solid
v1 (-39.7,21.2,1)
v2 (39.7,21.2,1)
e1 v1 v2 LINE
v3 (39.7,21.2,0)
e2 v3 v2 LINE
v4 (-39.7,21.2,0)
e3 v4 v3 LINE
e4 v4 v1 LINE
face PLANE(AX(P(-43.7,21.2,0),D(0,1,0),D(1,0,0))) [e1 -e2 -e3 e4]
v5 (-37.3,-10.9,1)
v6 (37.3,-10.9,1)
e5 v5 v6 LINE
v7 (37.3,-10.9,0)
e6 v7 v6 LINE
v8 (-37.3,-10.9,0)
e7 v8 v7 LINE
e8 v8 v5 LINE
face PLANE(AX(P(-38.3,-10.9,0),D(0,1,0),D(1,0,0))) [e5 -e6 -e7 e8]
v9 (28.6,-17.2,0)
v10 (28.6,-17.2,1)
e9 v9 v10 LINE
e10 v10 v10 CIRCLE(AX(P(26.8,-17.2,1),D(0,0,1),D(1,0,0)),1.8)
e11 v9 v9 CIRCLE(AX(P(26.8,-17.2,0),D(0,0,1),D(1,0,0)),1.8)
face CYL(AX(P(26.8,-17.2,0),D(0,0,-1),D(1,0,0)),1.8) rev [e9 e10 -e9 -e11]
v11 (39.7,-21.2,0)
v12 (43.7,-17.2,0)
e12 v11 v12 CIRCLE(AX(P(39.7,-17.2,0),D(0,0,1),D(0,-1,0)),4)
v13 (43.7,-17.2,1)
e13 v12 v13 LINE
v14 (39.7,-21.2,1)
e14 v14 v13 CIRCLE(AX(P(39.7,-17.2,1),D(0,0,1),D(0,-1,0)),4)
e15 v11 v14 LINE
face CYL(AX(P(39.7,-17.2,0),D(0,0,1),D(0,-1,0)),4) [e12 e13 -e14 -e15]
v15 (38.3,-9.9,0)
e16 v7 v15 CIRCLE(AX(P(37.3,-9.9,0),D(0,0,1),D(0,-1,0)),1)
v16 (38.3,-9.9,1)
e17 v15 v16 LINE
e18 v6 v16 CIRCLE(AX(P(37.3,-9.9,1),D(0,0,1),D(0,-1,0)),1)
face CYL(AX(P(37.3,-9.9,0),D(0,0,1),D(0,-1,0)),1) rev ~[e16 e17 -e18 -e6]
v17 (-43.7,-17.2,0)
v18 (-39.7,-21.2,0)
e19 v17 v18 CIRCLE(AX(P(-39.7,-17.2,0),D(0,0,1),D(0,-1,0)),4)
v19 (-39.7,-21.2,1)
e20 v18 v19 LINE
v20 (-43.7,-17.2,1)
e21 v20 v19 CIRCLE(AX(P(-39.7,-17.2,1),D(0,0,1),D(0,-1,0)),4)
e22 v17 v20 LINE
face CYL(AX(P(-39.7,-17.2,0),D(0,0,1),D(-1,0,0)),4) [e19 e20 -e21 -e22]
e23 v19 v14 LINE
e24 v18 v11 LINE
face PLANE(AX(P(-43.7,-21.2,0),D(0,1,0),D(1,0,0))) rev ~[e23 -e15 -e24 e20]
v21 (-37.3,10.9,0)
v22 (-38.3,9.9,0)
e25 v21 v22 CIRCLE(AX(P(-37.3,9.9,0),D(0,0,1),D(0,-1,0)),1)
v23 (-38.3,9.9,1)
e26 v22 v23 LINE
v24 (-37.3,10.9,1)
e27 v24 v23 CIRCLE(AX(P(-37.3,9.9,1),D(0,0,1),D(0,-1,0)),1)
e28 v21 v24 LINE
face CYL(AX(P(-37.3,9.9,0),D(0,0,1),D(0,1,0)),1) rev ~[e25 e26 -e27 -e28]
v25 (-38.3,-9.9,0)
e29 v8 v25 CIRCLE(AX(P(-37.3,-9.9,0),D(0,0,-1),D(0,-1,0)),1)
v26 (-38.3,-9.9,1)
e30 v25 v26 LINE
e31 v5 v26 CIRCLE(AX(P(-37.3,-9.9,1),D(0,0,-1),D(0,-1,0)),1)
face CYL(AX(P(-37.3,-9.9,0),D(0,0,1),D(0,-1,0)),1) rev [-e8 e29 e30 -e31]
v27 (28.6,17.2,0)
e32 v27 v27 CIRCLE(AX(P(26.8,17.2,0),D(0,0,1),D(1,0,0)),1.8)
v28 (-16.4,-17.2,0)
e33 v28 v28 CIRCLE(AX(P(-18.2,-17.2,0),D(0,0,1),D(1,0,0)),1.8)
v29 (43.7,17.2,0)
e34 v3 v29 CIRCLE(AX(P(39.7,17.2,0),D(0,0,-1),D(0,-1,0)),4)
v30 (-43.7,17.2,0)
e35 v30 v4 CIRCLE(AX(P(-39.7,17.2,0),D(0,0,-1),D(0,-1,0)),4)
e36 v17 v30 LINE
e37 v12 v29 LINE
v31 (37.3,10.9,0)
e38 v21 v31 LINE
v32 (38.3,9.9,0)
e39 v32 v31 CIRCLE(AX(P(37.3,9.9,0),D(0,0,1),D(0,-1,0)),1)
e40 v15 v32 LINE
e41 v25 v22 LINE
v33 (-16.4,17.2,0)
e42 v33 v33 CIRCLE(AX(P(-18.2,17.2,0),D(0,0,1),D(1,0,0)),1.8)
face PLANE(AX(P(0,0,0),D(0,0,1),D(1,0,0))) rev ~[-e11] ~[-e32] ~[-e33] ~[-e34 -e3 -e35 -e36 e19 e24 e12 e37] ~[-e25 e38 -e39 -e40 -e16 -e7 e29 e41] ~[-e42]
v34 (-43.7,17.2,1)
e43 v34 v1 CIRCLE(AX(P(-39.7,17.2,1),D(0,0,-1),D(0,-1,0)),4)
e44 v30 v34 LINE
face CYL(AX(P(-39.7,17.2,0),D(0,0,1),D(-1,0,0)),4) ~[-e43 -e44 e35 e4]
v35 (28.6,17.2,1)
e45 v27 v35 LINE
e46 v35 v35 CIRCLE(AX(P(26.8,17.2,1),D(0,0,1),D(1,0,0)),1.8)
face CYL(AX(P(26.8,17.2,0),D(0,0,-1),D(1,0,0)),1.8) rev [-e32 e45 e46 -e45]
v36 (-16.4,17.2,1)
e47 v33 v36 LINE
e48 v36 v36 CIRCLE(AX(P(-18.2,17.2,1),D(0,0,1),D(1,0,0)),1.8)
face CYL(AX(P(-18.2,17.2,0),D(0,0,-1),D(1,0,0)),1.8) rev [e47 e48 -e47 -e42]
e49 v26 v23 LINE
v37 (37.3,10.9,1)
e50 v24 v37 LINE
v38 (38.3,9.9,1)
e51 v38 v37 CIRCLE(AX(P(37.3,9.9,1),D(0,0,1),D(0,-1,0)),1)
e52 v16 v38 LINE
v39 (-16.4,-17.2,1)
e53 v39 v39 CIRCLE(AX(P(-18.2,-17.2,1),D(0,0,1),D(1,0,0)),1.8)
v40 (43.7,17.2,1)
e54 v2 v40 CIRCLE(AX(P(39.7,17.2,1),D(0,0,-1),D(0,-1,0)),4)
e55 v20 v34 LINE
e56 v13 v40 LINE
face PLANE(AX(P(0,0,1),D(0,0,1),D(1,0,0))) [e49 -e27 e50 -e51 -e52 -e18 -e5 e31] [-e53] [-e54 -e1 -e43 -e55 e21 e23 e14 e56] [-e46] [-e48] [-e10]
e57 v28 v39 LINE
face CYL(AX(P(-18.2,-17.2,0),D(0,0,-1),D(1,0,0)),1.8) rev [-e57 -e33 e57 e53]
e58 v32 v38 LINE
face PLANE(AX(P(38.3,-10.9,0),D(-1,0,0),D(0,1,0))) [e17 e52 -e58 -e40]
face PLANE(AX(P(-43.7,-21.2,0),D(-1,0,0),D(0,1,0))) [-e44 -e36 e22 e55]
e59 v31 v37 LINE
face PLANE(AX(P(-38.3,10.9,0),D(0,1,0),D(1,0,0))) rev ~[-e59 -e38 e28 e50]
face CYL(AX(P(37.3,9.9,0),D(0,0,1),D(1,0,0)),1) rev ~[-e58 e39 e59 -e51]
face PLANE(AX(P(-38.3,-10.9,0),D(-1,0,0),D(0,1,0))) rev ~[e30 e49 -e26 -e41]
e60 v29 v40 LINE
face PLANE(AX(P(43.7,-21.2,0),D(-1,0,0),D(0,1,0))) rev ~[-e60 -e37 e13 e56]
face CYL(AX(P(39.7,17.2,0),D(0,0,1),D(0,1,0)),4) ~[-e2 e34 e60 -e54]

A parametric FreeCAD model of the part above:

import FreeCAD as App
import Part
import Sketcher
Q = App.Units.Quantity


def edges_at(feature, points):
    """Names of the edges that pass closest to the given points."""
    edges = feature.Shape.Edges
    near = lambda p: min(range(len(edges)), key=lambda i: edges[i].distToShape(Part.Vertex(*p))[0])
    return sorted({f"Edge{near(p) + 1}" for p in points})


def add_polygon(sketch, points):
    """Adds a closed chain of lines whose ends are joined by coincident constraints."""
    first, n = sketch.GeometryCount, len(points)
    for a, b in zip(points, points[1:] + points[:1]):
        sketch.addGeometry(Part.LineSegment(App.Vector(*a, 0), App.Vector(*b, 0)), False)
    for i in range(n):
        sketch.addConstraint(Sketcher.Constraint("Coincident", first + i, 2, first + (i + 1) % n, 1))

doc = App.newDocument("Part")
body = doc.addObject("PartDesign::Body", "Body")

# Sketch on XY plane
sketch1 = doc.addObject("Sketcher::SketchObject", "Sketch")
body.addObject(sketch1)
sketch1.AttachmentSupport = (doc.XY_Plane, [""])
sketch1.MapMode = "FlatFace"
add_polygon(sketch1, [(-43.7, 21.2), (-43.7, -21.2), (43.7, -21.2), (43.7, 21.2)])  # lines 0-3
sketch1.addGeometry(Part.Circle(App.Vector(-18.2, -17.2, 0), App.Vector(0, 0, 1), 1.8), False)  # 4
sketch1.addGeometry(Part.Circle(App.Vector(26.8, -17.2, 0), App.Vector(0, 0, 1), 1.8), False)  # 5
sketch1.addGeometry(Part.Circle(App.Vector(-18.2, 17.2, 0), App.Vector(0, 0, 1), 1.8), False)  # 6
add_polygon(sketch1, [(38.3, -10.9), (-38.3, -10.9), (-38.3, 10.9), (38.3, 10.9)])  # lines 7-10
sketch1.addGeometry(Part.Circle(App.Vector(26.8, 17.2, 0), App.Vector(0, 0, 1), 1.8), False)  # 11
sketch1.addConstraint(Sketcher.Constraint("Vertical", 0))
sketch1.addConstraint(Sketcher.Constraint("Horizontal", 1))
sketch1.addConstraint(Sketcher.Constraint("Vertical", 2))
sketch1.addConstraint(Sketcher.Constraint("Horizontal", 3))
sketch1.addConstraint(Sketcher.Constraint("Horizontal", 7))
sketch1.addConstraint(Sketcher.Constraint("Vertical", 8))
sketch1.addConstraint(Sketcher.Constraint("Horizontal", 9))
sketch1.addConstraint(Sketcher.Constraint("Vertical", 10))
sketch1.addConstraint(Sketcher.Constraint("Equal", 4, 5))
sketch1.addConstraint(Sketcher.Constraint("Equal", 5, 6))
sketch1.addConstraint(Sketcher.Constraint("Equal", 6, 11))
sketch1.addConstraint(Sketcher.Constraint("Symmetric", 0, 2, 2, 2, -1, 1))
sketch1.addConstraint(Sketcher.Constraint("Symmetric", 7, 2, 9, 2, -1, 1))
sketch1.addConstraint(Sketcher.Constraint("Symmetric", 4, 3, 6, 3, -1))
sketch1.addConstraint(Sketcher.Constraint("Symmetric", 5, 3, 11, 3, -1))
sketch1.addConstraint(Sketcher.Constraint("Horizontal", 4, 3, 5, 3))
sketch1.addConstraint(Sketcher.Constraint("Diameter", 4, Q("3.6 mm")))
sketch1.addConstraint(Sketcher.Constraint("DistanceX", 1, 1, 1, 2, Q("87.4 mm")))
sketch1.addConstraint(Sketcher.Constraint("DistanceX", 7, 2, 7, 1, Q("76.6 mm")))
sketch1.addConstraint(Sketcher.Constraint("DistanceY", 0, 2, 0, 1, Q("42.4 mm")))
sketch1.addConstraint(Sketcher.Constraint("DistanceY", 8, 1, 8, 2, Q("21.8 mm")))
sketch1.addConstraint(Sketcher.Constraint("DistanceX", 4, 3, 5, 3, Q("45 mm")))
sketch1.addConstraint(Sketcher.Constraint("DistanceY", 0, 2, 4, 3, Q("4 mm")))
sketch1.addConstraint(Sketcher.Constraint("DistanceX", 4, 3, -1, 1, Q("18.2 mm")))
pad1 = doc.addObject("PartDesign::Pad", "Pad")
body.addObject(pad1)
pad1.Profile = sketch1
pad1.Length = 1
doc.recompute()

fillet = doc.addObject("PartDesign::Fillet", "Fillet")
body.addObject(fillet)
fillet.Base = (pad1, edges_at(pad1, [
    (43.7, -21.2, 0.5),
    (-43.7, -21.2, 0.5),
    (43.7, 21.2, 0.5),
    (-43.7, 21.2, 0.5),
]))
fillet.Radius = 4
doc.recompute()

fillet2 = doc.addObject("PartDesign::Fillet", "Fillet001")
body.addObject(fillet2)
fillet2.Base = (fillet, edges_at(fillet, [
    (38.3, 10.9, 0.5),
    (38.3, -10.9, 0.5),
    (-38.3, -10.9, 0.5),
    (-38.3, 10.9, 0.5),
]))
fillet2.Radius = 1

doc.recompute()
